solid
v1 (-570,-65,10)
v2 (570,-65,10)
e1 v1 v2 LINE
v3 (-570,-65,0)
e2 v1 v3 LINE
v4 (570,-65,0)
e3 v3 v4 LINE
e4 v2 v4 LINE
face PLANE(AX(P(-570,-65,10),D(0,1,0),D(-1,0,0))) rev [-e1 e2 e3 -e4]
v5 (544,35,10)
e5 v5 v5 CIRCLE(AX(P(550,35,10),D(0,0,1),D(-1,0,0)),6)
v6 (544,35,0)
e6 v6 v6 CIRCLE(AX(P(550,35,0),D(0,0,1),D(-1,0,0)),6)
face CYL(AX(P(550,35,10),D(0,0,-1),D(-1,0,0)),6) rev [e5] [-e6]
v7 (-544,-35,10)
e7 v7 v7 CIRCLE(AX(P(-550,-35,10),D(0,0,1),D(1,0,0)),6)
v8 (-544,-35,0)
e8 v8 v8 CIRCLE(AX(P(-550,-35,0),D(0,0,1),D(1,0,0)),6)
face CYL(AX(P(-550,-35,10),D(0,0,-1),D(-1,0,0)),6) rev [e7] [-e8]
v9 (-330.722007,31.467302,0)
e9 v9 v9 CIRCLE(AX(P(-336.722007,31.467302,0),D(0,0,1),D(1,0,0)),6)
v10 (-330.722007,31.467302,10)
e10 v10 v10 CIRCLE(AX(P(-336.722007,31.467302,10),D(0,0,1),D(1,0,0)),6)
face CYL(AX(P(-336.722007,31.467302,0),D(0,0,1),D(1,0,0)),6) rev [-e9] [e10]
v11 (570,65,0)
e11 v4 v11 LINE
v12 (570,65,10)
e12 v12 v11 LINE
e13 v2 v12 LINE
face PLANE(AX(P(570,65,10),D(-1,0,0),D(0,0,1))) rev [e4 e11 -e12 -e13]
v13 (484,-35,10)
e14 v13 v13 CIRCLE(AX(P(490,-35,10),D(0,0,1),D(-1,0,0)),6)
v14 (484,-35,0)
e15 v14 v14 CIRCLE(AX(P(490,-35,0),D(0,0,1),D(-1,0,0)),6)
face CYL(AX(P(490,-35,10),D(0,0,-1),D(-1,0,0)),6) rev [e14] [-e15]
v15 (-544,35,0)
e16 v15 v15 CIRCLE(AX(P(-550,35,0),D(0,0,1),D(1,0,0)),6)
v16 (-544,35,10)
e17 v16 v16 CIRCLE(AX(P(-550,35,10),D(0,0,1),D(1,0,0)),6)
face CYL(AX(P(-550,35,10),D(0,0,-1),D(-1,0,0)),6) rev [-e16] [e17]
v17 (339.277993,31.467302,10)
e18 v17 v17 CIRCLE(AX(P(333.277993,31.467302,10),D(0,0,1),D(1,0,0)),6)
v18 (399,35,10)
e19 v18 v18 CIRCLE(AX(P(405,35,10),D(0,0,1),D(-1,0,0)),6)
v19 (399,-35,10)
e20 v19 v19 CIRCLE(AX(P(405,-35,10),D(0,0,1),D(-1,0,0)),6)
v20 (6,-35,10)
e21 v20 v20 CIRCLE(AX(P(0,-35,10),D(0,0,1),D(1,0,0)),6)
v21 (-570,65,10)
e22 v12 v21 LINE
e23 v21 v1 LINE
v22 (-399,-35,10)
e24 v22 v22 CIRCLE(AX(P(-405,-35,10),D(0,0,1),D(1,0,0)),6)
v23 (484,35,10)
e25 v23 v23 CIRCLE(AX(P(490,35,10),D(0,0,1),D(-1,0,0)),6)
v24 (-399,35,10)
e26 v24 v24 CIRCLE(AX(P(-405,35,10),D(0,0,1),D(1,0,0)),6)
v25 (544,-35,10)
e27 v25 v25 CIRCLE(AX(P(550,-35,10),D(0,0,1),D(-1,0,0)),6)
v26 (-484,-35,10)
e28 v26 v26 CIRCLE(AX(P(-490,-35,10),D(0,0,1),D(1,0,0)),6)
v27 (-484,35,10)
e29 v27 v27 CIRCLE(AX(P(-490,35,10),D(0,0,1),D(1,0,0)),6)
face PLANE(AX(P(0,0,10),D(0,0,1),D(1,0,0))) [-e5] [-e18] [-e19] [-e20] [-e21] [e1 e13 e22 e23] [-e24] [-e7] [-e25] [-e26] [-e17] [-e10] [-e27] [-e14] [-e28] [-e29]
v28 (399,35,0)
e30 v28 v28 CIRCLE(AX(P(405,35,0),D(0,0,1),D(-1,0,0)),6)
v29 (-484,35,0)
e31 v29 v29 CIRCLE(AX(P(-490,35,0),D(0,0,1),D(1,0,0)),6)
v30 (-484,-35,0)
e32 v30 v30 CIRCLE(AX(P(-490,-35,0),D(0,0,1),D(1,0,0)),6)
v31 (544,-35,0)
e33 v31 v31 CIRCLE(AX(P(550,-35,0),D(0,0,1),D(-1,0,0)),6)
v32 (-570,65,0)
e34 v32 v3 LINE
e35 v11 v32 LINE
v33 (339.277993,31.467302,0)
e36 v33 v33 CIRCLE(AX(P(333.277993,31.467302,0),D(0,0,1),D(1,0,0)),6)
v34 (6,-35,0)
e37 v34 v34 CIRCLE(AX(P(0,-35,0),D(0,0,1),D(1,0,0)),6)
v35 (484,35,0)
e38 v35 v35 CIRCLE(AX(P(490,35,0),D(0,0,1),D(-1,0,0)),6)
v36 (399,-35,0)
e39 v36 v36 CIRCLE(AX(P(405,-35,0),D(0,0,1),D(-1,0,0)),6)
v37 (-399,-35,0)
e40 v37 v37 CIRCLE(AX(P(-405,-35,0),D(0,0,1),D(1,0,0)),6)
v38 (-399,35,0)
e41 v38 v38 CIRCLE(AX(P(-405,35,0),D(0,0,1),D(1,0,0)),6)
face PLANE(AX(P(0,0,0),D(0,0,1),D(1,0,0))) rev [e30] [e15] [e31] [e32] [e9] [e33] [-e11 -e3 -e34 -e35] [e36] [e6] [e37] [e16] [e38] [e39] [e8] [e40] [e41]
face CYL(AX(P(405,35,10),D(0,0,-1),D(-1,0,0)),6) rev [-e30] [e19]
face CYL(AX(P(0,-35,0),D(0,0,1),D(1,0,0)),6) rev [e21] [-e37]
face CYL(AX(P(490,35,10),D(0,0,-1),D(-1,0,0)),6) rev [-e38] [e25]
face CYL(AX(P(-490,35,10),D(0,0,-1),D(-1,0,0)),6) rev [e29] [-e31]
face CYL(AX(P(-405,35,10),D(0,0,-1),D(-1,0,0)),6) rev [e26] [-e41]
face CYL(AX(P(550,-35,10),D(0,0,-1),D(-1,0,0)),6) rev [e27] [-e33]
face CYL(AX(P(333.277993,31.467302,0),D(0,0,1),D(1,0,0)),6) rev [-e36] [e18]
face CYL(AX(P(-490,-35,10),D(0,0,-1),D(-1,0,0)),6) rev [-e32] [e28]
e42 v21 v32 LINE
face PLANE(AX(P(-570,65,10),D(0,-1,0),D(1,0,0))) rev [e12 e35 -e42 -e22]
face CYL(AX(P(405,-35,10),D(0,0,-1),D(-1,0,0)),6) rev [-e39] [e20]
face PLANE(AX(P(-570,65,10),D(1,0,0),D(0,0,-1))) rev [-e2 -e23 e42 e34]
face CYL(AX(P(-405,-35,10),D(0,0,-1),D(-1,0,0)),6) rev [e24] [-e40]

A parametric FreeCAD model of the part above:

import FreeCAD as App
import Part
import Sketcher
from FreeCAD import Vector
Q = App.Units.Quantity


def add_polygon(sketch, points):
    """Adds a closed chain of lines whose ends are joined by coincident constraints."""
    first, n = sketch.GeometryCount, len(points)
    for a, b in zip(points, points[1:] + points[:1]):
        sketch.addGeometry(Part.LineSegment(App.Vector(*a, 0), App.Vector(*b, 0)), False)
    for i in range(n):
        sketch.addConstraint(Sketcher.Constraint("Coincident", first + i, 2, first + (i + 1) % n, 1))

doc = App.newDocument("Part")
body = doc.addObject("PartDesign::Body", "Body")

# Sketch on XY plane
sketch1 = body.newObject("Sketcher::SketchObject", "Sketch")
sketch1.AttachmentSupport = (doc.getObject("XY_Plane"), [""])
sketch1.MapMode = "FlatFace"
add_polygon(sketch1, [(-570, 65), (-570, -65), (570, -65), (570, 65)])  # lines 0-3
sketch1.addGeometry(Part.Circle(Vector(-550, -35, 0), Vector(0, 0, 1), 6), False)  # 4
sketch1.addGeometry(Part.Circle(Vector(-490, -35, 0), Vector(0, 0, 1), 6), False)  # 5
sketch1.addGeometry(Part.Circle(Vector(-405, -35, 0), Vector(0, 0, 1), 6), False)  # 6
sketch1.addGeometry(Part.Circle(Vector(405, -35, 0), Vector(0, 0, 1), 6), False)  # 7
sketch1.addGeometry(Part.Circle(Vector(490, -35, 0), Vector(0, 0, 1), 6), False)  # 8
sketch1.addGeometry(Part.Circle(Vector(550, -35, 0), Vector(0, 0, 1), 6), False)  # 9
sketch1.addGeometry(Part.Circle(Vector(-550, 35, 0), Vector(0, 0, 1), 6), False)  # 10
sketch1.addGeometry(Part.Circle(Vector(-490, 35, 0), Vector(0, 0, 1), 6), False)  # 11
sketch1.addGeometry(Part.Circle(Vector(-405, 35, 0), Vector(0, 0, 1), 6), False)  # 12
sketch1.addGeometry(Part.Circle(Vector(405, 35, 0), Vector(0, 0, 1), 6), False)  # 13
sketch1.addGeometry(Part.Circle(Vector(490, 35, 0), Vector(0, 0, 1), 6), False)  # 14
sketch1.addGeometry(Part.Circle(Vector(550, 35, 0), Vector(0, 0, 1), 6), False)  # 15
sketch1.addConstraint([
    Sketcher.Constraint("Vertical", 0),
    Sketcher.Constraint("Horizontal", 1),
    Sketcher.Constraint("Vertical", 2),
    Sketcher.Constraint("Horizontal", 3),
    Sketcher.Constraint("Equal", 4, 5),
    Sketcher.Constraint("Equal", 5, 6),
    Sketcher.Constraint("Equal", 6, 7),
    Sketcher.Constraint("Equal", 7, 8),
    Sketcher.Constraint("Equal", 8, 9),
    Sketcher.Constraint("Equal", 9, 10),
    Sketcher.Constraint("Equal", 10, 11),
    Sketcher.Constraint("Equal", 11, 12),
    Sketcher.Constraint("Equal", 12, 13),
    Sketcher.Constraint("Equal", 13, 14),
    Sketcher.Constraint("Equal", 14, 15),
    Sketcher.Constraint("Symmetric", 9, 3, 10, 3, -1, 1),
    Sketcher.Constraint("Symmetric", 8, 3, 11, 3, -1, 1),
    Sketcher.Constraint("Symmetric", 7, 3, 12, 3, -1, 1),
    Sketcher.Constraint("Symmetric", 6, 3, 13, 3, -1, 1),
    Sketcher.Constraint("Symmetric", 5, 3, 14, 3, -1, 1),
    Sketcher.Constraint("Symmetric", 4, 3, 15, 3, -1, 1),
    Sketcher.Constraint("Symmetric", 0, 2, 2, 2, -1, 1),
    Sketcher.Constraint("Symmetric", 6, 3, 7, 3, -2),
    Sketcher.Constraint("Symmetric", 5, 3, 8, 3, -2),
    Sketcher.Constraint("Symmetric", 4, 3, 9, 3, -2),
    Sketcher.Constraint("Horizontal", 4, 3, 5, 3),
    Sketcher.Constraint("Horizontal", 5, 3, 6, 3),
    Sketcher.Constraint("Diameter", 4, Q("12 mm")),
    Sketcher.Constraint("DistanceX", 1, 1, 1, 2, Q("1140 mm")),
    Sketcher.Constraint("DistanceY", 0, 2, 0, 1, Q("130 mm")),
    Sketcher.Constraint("DistanceX", 4, 3, -1, 1, Q("550 mm")),
    Sketcher.Constraint("DistanceY", 4, 3, -1, 1, Q("35 mm")),
    Sketcher.Constraint("DistanceX", 5, 3, -1, 1, Q("490 mm")),
    Sketcher.Constraint("DistanceX", 6, 3, -1, 1, Q("405 mm")),
])
pad1 = body.newObject("PartDesign::Pad", "Pad")
pad1.Profile = sketch1
pad1.Length = 10

# Sketch on XY plane
sketch2 = body.newObject("Sketcher::SketchObject", "Sketch001")
sketch2.AttachmentSupport = (doc.getObject("XY_Plane"), [""])
sketch2.MapMode = "FlatFace"
sketch2.AttachmentOffset = App.Placement(Vector(0, 0, 10), App.Rotation())
sketch2.addGeometry(Part.Circle(Vector(0, -35, 0), Vector(0, 0, 1), 6), False)
sketch2.addConstraint([
    Sketcher.Constraint("PointOnObject", 0, 3, -2),
    Sketcher.Constraint("Diameter", 0, Q("12 mm")),
    Sketcher.Constraint("DistanceY", 0, 3, -1, 1, Q("35 mm")),
])
pocket1 = body.newObject("PartDesign::Pocket", "Pocket")
pocket1.Profile = sketch2
pocket1.Type = "ThroughAll"

# Sketch on XY plane
sketch3 = body.newObject("Sketcher::SketchObject", "Sketch002")
sketch3.AttachmentSupport = (doc.getObject("XY_Plane"), [""])
sketch3.MapMode = "FlatFace"
sketch3.AttachmentOffset = App.Placement(Vector(0, 0, 10), App.Rotation())
sketch3.addGeometry(Part.Circle(Vector(333, 31, 0), Vector(0, 0, 1), 6), False)
sketch3.addConstraint([
    Sketcher.Constraint("Diameter", 0, Q("12 mm")),
    Sketcher.Constraint("DistanceX", -1, 1, 0, 3, Q("333.277993 mm")),
    Sketcher.Constraint("DistanceY", -1, 1, 0, 3, Q("31.467302 mm")),
])
pocket2 = body.newObject("PartDesign::Pocket", "Pocket001")
pocket2.Profile = sketch3
pocket2.Type = "ThroughAll"

# Sketch on XY plane
sketch4 = body.newObject("Sketcher::SketchObject", "Sketch003")
sketch4.AttachmentSupport = (doc.getObject("XY_Plane"), [""])
sketch4.MapMode = "FlatFace"
sketch4.AttachmentOffset = App.Placement(Vector(0, 0, 10), App.Rotation())
sketch4.addGeometry(Part.Circle(Vector(-337, 31, 0), Vector(0, 0, 1), 6), False)
sketch4.addConstraint([
    Sketcher.Constraint("Diameter", 0, Q("12 mm")),
    Sketcher.Constraint("DistanceX", 0, 3, -1, 1, Q("336.722007 mm")),
    Sketcher.Constraint("DistanceY", -1, 1, 0, 3, Q("31.467302 mm")),
])
pocket3 = body.newObject("PartDesign::Pocket", "Pocket002")
pocket3.Profile = sketch4
pocket3.Type = "ThroughAll"

doc.recompute()
